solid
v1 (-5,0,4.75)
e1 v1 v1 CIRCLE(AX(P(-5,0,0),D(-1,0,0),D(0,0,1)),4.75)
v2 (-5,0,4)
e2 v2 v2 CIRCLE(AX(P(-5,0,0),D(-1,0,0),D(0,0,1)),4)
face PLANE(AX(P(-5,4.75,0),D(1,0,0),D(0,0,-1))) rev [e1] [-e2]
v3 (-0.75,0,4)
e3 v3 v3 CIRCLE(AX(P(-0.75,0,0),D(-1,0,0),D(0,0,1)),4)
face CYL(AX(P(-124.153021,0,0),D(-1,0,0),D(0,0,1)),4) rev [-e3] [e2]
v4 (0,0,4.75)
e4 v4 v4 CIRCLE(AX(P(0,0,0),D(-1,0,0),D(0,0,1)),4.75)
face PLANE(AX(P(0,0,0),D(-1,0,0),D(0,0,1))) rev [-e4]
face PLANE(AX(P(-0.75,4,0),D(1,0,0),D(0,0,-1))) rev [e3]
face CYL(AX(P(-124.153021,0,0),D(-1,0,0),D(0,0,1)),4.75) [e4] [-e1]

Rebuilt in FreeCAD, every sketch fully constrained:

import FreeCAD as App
import Part
import Sketcher

V = App.Vector
Q = App.Units.Quantity


def add_polygon(sketch, points):
    """Adds a closed chain of lines whose ends are joined by coincident constraints."""
    first, n = sketch.GeometryCount, len(points)
    for a, b in zip(points, points[1:] + points[:1]):
        sketch.addGeometry(Part.LineSegment(App.Vector(*a, 0), App.Vector(*b, 0)), False)
    for i in range(n):
        sketch.addConstraint(Sketcher.Constraint("Coincident", first + i, 2, first + (i + 1) % n, 1))

doc = App.newDocument("Part")
body = doc.addObject("PartDesign::Body", "Body")

# Sketch on XY plane
sketch1 = body.newObject("Sketcher::SketchObject", "Sketch")
sketch1.AttachmentSupport = (doc.getObject("XY_Plane"), [""])
sketch1.MapMode = "FlatFace"
add_polygon(sketch1, [(0, 0), (0, 4.8), (-5, 4.8), (-5, 4), (-0.8, 4), (-0.8, 0)])  # lines 0-5
sketch1.addConstraint(Sketcher.Constraint("Vertical", 0))
sketch1.addConstraint(Sketcher.Constraint("Horizontal", 1))
sketch1.addConstraint(Sketcher.Constraint("Vertical", 2))
sketch1.addConstraint(Sketcher.Constraint("Horizontal", 3))
sketch1.addConstraint(Sketcher.Constraint("Vertical", 4))
sketch1.addConstraint(Sketcher.Constraint("Horizontal", 5))
sketch1.addConstraint(Sketcher.Constraint("Coincident", 5, 2, -1, 1))
sketch1.addConstraint(Sketcher.Constraint("Equal", 5, 2))
sketch1.addConstraint(Sketcher.Constraint("DistanceX", 1, 2, 1, 1, Q("5 mm")))
sketch1.addConstraint(Sketcher.Constraint("DistanceY", 4, 2, 4, 1, Q("4 mm")))
sketch1.addConstraint(Sketcher.Constraint("DistanceX", 3, 1, 3, 2, Q("4.25 mm")))
revolution = body.newObject("PartDesign::Revolution", "Revolution")
revolution.Profile = sketch1
revolution.ReferenceAxis = (sketch1, ["H_Axis"])
revolution.Angle = 360

doc.recompute()
